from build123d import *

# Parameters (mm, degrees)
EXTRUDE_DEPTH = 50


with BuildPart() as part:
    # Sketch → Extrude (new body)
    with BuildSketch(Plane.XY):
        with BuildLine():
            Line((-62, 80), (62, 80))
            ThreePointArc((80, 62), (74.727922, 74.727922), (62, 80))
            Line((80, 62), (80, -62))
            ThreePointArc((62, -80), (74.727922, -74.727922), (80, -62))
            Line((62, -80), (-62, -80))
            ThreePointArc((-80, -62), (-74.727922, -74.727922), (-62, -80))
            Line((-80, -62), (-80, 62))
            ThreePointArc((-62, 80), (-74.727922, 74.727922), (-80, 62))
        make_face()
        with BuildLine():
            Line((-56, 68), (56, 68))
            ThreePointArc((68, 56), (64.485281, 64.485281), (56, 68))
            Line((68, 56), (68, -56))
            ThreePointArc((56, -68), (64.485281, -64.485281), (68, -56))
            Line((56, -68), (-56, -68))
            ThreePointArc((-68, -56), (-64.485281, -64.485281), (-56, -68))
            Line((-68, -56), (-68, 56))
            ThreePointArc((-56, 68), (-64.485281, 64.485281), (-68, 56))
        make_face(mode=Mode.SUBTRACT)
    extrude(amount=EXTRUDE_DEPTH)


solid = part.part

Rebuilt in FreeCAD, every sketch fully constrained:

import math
import FreeCAD as App
import Part
import Sketcher

V = App.Vector

doc = App.newDocument("Part")
body = doc.addObject("PartDesign::Body", "Body")

# Sketch on XY plane
sketch1 = doc.addObject("Sketcher::SketchObject", "Sketch")
body.addObject(sketch1)
sketch1.AttachmentSupport = (doc.XY_Plane, [""])
sketch1.MapMode = "FlatFace"
sketch1.addGeometry([
    Part.LineSegment(V(62, 80, 0), V(-62, 80, 0)),  # 0
    Part.ArcOfCircle(Part.Circle(V(-62, 62, 0), V(0, 0, 1), 18), math.radians(90), math.radians(180)),  # 1
    Part.LineSegment(V(-80, 62, 0), V(-80, -62, 0)),  # 2
    Part.ArcOfCircle(Part.Circle(V(-62, -62, 0), V(0, 0, 1), 18), math.radians(-180), math.radians(-90)),  # 3
    Part.LineSegment(V(-62, -80, 0), V(62, -80, 0)),  # 4
    Part.ArcOfCircle(Part.Circle(V(62, -62, 0), V(0, 0, 1), 18), math.radians(-90), math.radians(0)),  # 5
    Part.LineSegment(V(80, -62, 0), V(80, 62, 0)),  # 6
    Part.ArcOfCircle(Part.Circle(V(62, 62, 0), V(0, 0, 1), 18), math.radians(0), math.radians(90)),  # 7
    Part.LineSegment(V(-56, 68, 0), V(56, 68, 0)),  # 8
    Part.ArcOfCircle(Part.Circle(V(56, 56, 0), V(0, 0, 1), 12), math.radians(0), math.radians(90)),  # 9
    Part.LineSegment(V(68, 56, 0), V(68, -56, 0)),  # 10
    Part.ArcOfCircle(Part.Circle(V(56, -56, 0), V(0, 0, 1), 12), math.radians(-90), math.radians(0)),  # 11
    Part.LineSegment(V(56, -68, 0), V(-56, -68, 0)),  # 12
    Part.ArcOfCircle(Part.Circle(V(-56, -56, 0), V(0, 0, 1), 12), math.radians(-180), math.radians(-90)),  # 13
    Part.LineSegment(V(-68, -56, 0), V(-68, 56, 0)),  # 14
    Part.ArcOfCircle(Part.Circle(V(-56, 56, 0), V(0, 0, 1), 12), math.radians(90), math.radians(180)),  # 15
], False)
sketch1.addConstraint([
    Sketcher.Constraint("Tangent", 0, 2, 1, 1),
    Sketcher.Constraint("Tangent", 1, 2, 2, 1),
    Sketcher.Constraint("Tangent", 2, 2, 3, 1),
    Sketcher.Constraint("Tangent", 3, 2, 4, 1),
    Sketcher.Constraint("Tangent", 4, 2, 5, 1),
    Sketcher.Constraint("Tangent", 5, 2, 6, 1),
    Sketcher.Constraint("Tangent", 6, 2, 7, 1),
    Sketcher.Constraint("Tangent", 7, 2, 0, 1),
    Sketcher.Constraint("Tangent", 8, 2, 9, 2),
    Sketcher.Constraint("Tangent", 9, 1, 10, 1),
    Sketcher.Constraint("Tangent", 10, 2, 11, 2),
    Sketcher.Constraint("Tangent", 11, 1, 12, 1),
    Sketcher.Constraint("Tangent", 12, 2, 13, 2),
    Sketcher.Constraint("Tangent", 13, 1, 14, 1),
    Sketcher.Constraint("Tangent", 14, 2, 15, 2),
    Sketcher.Constraint("Tangent", 15, 1, 8, 1),
    Sketcher.Constraint("Horizontal", 0),
    Sketcher.Constraint("Vertical", 2),
    Sketcher.Constraint("Horizontal", 4),
    Sketcher.Constraint("Vertical", 6),
    Sketcher.Constraint("Horizontal", 8),
    Sketcher.Constraint("Vertical", 10),
    Sketcher.Constraint("Horizontal", 12),
    Sketcher.Constraint("Vertical", 14),
    Sketcher.Constraint("Equal", 1, 3),
    Sketcher.Constraint("Equal", 3, 5),
    Sketcher.Constraint("Equal", 5, 7),
    Sketcher.Constraint("Equal", 9, 11),
    Sketcher.Constraint("Equal", 11, 13),
    Sketcher.Constraint("Equal", 13, 15),
    Sketcher.Constraint("Symmetric", 1, 3, 5, 3, -1, 1),
    Sketcher.Constraint("Symmetric", 9, 3, 13, 3, -1, 1),
    Sketcher.Constraint("Equal", 4, 2),
    Sketcher.Constraint("Equal", 12, 10),
    Sketcher.Constraint("Radius", 1, 18.0),
    Sketcher.Constraint("Radius", 9, 12.000001),
    Sketcher.Constraint("DistanceX", 0, 2, 0, 1, 124.0),
    Sketcher.Constraint("DistanceX", 8, 1, 8, 2, 112.0),
])
pad1 = doc.addObject("PartDesign::Pad", "Pad")
body.addObject(pad1)
pad1.Profile = sketch1
pad1.Length = 50

doc.recompute()
